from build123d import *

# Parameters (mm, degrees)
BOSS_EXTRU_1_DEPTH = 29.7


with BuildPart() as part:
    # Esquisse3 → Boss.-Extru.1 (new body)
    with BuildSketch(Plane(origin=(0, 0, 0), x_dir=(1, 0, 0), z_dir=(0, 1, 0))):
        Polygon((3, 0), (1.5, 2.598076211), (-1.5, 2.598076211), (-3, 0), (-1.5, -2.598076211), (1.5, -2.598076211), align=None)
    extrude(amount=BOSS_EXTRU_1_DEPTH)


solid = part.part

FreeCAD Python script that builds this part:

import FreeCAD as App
import Part
import Sketcher
from FreeCAD import Vector
Q = App.Units.Quantity

doc = App.newDocument("Part")
body = doc.addObject("PartDesign::Body", "Body")

# Sketch on XZ plane
sketch1 = body.newObject("Sketcher::SketchObject", "Sketch")
sketch1.AttachmentSupport = (doc.getObject("XZ_Plane"), [""])
sketch1.MapMode = "FlatFace"
sketch1.addGeometry([
    Part.LineSegment(Vector(3, 0, 0), Vector(1.5, -2.6, 0)),  # 0
    Part.LineSegment(Vector(1.5, -2.6, 0), Vector(-1.5, -2.6, 0)),  # 1
    Part.LineSegment(Vector(-1.5, -2.6, 0), Vector(-3, 0, 0)),  # 2
    Part.LineSegment(Vector(-3, 0, 0), Vector(-1.5, 2.6, 0)),  # 3
    Part.LineSegment(Vector(-1.5, 2.6, 0), Vector(1.5, 2.6, 0)),  # 4
    Part.LineSegment(Vector(1.5, 2.6, 0), Vector(3, 0, 0)),  # 5
], False)
sketch1.addConstraint([
    Sketcher.Constraint("Coincident", 0, 2, 1, 1),
    Sketcher.Constraint("Coincident", 1, 2, 2, 1),
    Sketcher.Constraint("Coincident", 2, 2, 3, 1),
    Sketcher.Constraint("Coincident", 3, 2, 4, 1),
    Sketcher.Constraint("Coincident", 4, 2, 5, 1),
    Sketcher.Constraint("Coincident", 5, 2, 0, 1),
    Sketcher.Constraint("Horizontal", 1),
    Sketcher.Constraint("Horizontal", 4),
    Sketcher.Constraint("Symmetric", 0, 2, 3, 2, -1, 1),
    Sketcher.Constraint("Symmetric", 2, 2, 5, 2, -1, 1),
    Sketcher.Constraint("PointOnObject", 2, 2, -1),
    Sketcher.Constraint("Parallel", 2, 5),
    Sketcher.Constraint("Vertical", 1, 2, 3, 2),
    Sketcher.Constraint("DistanceX", 1, 2, 1, 1, Q("3 mm")),
    Sketcher.Constraint("Angle", 0, Q("-120 deg")),
    Sketcher.Constraint("Distance", 0, Q("3 mm")),
])
pad1 = body.newObject("PartDesign::Pad", "Pad")
pad1.Profile = sketch1
pad1.Length = 29.7
pad1.Reversed = True

doc.recompute()
